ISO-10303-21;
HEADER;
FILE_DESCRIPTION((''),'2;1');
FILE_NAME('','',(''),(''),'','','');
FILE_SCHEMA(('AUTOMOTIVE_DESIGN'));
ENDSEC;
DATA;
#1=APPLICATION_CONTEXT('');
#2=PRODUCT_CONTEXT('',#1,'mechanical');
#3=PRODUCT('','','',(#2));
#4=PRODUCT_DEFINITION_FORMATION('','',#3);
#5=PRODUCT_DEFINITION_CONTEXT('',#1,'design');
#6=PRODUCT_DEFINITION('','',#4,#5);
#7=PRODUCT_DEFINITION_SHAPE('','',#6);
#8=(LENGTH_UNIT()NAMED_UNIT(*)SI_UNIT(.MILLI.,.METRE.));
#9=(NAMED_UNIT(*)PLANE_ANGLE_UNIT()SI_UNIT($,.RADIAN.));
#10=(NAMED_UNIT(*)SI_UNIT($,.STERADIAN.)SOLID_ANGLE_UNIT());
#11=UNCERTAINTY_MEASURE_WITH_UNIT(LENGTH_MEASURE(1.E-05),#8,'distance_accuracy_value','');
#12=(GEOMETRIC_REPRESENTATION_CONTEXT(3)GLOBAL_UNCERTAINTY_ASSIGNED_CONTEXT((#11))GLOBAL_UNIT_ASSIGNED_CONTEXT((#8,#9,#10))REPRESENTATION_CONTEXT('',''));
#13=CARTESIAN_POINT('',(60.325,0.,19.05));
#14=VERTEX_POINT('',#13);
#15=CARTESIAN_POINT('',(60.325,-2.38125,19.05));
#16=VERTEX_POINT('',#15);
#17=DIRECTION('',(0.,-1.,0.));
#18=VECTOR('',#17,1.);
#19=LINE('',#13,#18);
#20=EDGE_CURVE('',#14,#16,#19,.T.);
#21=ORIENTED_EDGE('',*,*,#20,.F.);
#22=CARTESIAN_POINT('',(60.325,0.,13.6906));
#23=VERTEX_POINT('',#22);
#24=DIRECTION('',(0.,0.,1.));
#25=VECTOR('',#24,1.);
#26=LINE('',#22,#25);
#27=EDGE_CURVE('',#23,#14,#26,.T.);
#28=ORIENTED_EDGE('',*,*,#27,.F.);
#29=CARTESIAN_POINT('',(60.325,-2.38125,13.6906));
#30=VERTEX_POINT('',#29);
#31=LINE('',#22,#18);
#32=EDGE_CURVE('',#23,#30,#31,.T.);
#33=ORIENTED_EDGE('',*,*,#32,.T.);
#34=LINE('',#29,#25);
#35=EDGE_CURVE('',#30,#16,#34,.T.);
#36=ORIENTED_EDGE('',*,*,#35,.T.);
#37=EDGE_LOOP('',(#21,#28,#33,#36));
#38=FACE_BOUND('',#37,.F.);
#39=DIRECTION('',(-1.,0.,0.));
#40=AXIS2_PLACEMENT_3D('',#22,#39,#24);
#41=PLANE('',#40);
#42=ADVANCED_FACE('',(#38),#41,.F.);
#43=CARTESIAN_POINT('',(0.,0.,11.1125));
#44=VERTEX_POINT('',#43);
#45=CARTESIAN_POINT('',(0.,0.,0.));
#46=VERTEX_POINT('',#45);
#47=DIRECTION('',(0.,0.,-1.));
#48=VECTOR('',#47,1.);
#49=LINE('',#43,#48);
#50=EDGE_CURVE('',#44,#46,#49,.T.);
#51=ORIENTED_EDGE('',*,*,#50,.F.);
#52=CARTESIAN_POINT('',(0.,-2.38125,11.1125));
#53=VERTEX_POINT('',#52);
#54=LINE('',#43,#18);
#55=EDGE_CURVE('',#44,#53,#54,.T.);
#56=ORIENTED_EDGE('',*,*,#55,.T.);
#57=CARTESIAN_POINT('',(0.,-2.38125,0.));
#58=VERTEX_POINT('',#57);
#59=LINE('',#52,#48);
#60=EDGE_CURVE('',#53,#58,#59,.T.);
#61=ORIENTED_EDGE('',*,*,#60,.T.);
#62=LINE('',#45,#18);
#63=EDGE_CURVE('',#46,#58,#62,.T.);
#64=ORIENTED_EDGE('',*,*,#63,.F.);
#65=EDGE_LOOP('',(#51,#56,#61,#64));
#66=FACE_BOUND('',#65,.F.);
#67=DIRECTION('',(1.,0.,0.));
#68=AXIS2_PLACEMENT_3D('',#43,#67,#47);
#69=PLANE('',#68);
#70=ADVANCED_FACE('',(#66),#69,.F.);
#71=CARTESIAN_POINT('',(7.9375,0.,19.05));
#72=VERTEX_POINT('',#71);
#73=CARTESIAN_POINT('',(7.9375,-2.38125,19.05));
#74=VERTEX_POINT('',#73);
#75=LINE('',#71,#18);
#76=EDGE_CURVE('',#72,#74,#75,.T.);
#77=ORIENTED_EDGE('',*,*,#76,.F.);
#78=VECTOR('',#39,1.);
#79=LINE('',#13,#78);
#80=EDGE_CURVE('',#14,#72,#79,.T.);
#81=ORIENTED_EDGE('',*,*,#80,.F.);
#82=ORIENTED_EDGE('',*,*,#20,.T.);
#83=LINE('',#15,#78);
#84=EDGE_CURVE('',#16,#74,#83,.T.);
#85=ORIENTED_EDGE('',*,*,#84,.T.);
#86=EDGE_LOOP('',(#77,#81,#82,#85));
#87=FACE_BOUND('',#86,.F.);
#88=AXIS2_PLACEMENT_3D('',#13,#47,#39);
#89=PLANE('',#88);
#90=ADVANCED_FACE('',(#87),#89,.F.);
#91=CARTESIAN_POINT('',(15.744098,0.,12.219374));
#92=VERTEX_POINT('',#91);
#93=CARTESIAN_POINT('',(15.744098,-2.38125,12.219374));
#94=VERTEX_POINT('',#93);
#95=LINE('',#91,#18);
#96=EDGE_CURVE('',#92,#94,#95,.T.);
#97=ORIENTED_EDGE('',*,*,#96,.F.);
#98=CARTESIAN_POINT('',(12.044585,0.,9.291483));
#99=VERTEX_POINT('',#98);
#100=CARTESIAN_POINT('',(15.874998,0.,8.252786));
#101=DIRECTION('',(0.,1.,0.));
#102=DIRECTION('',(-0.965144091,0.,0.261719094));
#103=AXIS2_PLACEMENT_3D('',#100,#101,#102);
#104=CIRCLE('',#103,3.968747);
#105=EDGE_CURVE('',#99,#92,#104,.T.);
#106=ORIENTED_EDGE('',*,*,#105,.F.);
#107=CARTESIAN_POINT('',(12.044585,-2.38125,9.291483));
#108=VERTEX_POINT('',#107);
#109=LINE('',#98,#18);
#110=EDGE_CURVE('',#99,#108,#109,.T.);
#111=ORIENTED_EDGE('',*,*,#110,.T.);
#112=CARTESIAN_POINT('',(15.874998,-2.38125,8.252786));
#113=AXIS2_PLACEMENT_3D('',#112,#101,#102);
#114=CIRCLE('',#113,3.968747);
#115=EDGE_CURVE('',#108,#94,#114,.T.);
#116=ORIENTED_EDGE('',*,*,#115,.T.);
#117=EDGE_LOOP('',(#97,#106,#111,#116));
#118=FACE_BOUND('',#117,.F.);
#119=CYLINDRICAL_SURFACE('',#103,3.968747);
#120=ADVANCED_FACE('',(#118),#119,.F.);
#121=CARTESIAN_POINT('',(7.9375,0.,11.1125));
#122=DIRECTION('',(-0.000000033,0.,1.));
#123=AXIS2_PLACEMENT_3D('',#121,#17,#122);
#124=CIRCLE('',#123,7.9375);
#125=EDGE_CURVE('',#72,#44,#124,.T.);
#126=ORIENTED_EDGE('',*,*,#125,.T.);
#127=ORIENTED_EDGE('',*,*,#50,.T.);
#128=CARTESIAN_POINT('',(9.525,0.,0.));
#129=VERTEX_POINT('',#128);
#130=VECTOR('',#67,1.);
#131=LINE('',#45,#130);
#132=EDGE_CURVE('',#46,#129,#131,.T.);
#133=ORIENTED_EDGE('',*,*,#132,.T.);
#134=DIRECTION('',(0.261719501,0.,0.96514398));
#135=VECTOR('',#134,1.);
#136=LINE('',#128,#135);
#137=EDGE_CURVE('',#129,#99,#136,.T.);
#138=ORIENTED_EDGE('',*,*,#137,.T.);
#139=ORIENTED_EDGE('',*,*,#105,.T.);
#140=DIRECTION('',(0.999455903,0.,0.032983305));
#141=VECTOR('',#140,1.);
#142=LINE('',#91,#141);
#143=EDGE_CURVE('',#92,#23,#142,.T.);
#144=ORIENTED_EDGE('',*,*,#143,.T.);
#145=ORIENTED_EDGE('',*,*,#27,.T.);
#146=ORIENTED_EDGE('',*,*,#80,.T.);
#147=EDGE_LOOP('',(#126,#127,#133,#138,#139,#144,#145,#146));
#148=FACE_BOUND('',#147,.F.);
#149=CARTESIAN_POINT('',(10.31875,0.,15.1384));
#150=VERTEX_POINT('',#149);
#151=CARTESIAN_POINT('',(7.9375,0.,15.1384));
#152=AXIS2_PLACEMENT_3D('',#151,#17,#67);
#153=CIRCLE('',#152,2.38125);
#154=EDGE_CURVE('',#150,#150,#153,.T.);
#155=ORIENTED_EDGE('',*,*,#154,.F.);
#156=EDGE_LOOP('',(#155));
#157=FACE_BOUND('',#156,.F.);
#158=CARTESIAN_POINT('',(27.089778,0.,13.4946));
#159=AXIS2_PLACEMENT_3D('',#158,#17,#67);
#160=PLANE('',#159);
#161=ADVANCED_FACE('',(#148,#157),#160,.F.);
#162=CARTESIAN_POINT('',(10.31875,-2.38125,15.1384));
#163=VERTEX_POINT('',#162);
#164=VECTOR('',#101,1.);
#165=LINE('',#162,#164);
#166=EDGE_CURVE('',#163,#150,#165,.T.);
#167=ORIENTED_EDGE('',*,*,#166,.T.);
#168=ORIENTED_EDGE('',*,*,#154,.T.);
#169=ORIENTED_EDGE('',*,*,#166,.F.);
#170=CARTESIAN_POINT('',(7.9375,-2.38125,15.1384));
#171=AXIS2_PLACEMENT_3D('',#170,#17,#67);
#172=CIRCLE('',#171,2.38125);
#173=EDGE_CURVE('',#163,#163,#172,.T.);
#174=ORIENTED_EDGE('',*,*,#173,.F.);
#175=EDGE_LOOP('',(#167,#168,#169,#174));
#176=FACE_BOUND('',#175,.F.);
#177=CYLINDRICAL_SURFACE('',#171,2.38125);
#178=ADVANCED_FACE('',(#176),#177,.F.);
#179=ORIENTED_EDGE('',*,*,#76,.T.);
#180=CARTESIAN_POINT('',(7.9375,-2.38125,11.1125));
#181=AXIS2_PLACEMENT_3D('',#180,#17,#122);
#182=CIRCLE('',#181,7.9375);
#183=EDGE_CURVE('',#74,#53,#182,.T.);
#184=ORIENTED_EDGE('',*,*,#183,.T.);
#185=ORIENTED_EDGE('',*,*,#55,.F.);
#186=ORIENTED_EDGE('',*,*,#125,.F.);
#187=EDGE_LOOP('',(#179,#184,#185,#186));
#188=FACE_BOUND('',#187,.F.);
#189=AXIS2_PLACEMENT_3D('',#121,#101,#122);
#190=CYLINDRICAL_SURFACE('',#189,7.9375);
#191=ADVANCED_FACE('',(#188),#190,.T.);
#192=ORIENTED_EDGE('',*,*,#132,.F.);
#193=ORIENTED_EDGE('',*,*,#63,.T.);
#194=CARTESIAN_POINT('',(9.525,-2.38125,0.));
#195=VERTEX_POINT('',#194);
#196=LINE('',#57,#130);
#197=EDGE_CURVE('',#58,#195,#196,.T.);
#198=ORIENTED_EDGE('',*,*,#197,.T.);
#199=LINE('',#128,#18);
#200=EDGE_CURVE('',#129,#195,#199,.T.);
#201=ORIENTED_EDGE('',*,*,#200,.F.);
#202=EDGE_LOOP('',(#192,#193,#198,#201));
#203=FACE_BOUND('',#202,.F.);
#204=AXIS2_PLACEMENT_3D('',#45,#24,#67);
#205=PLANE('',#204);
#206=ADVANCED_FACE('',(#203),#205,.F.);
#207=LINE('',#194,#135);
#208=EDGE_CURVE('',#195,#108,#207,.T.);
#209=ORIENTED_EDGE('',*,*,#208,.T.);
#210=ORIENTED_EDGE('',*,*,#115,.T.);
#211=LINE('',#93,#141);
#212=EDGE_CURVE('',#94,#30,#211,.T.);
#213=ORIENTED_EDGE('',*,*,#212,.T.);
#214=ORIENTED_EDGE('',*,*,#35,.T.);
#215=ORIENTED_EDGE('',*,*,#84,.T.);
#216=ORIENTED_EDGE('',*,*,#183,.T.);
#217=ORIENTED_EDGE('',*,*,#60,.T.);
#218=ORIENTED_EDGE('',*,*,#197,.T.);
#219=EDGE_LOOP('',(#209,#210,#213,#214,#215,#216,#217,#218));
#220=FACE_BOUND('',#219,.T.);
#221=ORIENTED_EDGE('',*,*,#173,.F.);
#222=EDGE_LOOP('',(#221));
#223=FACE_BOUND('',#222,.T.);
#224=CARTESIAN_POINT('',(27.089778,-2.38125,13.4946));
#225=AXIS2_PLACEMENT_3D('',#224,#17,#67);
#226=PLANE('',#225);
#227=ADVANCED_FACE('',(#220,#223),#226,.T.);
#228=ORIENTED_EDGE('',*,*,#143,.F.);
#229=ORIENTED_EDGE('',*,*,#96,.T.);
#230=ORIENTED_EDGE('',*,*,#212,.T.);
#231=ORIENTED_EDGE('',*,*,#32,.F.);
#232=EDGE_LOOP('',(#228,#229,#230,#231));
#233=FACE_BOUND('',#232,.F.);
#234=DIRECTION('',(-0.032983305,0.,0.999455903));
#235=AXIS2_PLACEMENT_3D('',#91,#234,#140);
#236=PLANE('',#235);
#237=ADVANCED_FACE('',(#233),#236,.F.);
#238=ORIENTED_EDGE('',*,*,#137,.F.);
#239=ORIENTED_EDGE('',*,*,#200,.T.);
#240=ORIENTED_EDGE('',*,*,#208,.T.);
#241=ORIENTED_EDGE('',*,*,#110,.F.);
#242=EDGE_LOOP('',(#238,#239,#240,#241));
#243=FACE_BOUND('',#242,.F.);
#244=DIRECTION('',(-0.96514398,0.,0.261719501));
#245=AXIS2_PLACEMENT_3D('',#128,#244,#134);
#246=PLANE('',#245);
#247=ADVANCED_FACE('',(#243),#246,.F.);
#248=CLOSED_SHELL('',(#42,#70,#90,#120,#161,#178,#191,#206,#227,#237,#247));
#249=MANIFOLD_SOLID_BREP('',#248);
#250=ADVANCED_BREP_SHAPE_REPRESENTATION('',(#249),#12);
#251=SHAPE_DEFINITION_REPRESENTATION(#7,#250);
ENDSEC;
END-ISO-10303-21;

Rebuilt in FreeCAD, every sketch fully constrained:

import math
import FreeCAD as App
import Part
import Sketcher

V = App.Vector
Q = App.Units.Quantity

doc = App.newDocument("Part")
body = doc.addObject("PartDesign::Body", "Body")

# Sketch on XZ plane
sketch1 = body.newObject("Sketcher::SketchObject", "Sketch")
sketch1.AttachmentSupport = (doc.getObject("XZ_Plane"), [""])
sketch1.MapMode = "FlatFace"
sketch1.addGeometry(Part.LineSegment(V(60.325, 19.05, 0), V(7.9375, 19.05, 0)), False)
sketch1.addGeometry(Part.ArcOfCircle(Part.Circle(V(7.9375, 11.1125, 0), V(0, 0, 1), 7.9375), math.radians(90.000002), math.radians(179.999998)), False)
sketch1.addGeometry(Part.LineSegment(V(0, 11.1125, 0), V(0, 0, 0)), False)
sketch1.addGeometry(Part.LineSegment(V(0, 0, 0), V(9.525, 0, 0)), False)
sketch1.addGeometry(Part.LineSegment(V(9.525, 0, 0), V(12.044585, 9.291483, 0)), False)
sketch1.addGeometry(Part.ArcOfCircle(Part.Circle(V(15.874998, 8.252786, 0), V(0, 0, 1), 3.968747), math.radians(91.890111), math.radians(164.827908)), False)
sketch1.addGeometry(Part.LineSegment(V(15.744098, 12.219374, 0), V(60.325, 13.6906, 0)), False)
sketch1.addGeometry(Part.LineSegment(V(60.325, 13.6906, 0), V(60.325, 19.05, 0)), False)
sketch1.addConstraint(Sketcher.Constraint("Coincident", 0, 2, 1, 1))
sketch1.addConstraint(Sketcher.Constraint("Coincident", 1, 2, 2, 1))
sketch1.addConstraint(Sketcher.Constraint("Coincident", 2, 2, 3, 1))
sketch1.addConstraint(Sketcher.Constraint("Coincident", 3, 2, 4, 1))
sketch1.addConstraint(Sketcher.Constraint("Coincident", 4, 2, 5, 2))
sketch1.addConstraint(Sketcher.Constraint("Coincident", 5, 1, 6, 1))
sketch1.addConstraint(Sketcher.Constraint("Coincident", 6, 2, 7, 1))
sketch1.addConstraint(Sketcher.Constraint("Coincident", 7, 2, 0, 1))
sketch1.addConstraint(Sketcher.Constraint("Horizontal", 0))
sketch1.addConstraint(Sketcher.Constraint("Vertical", 2))
sketch1.addConstraint(Sketcher.Constraint("Horizontal", 3))
sketch1.addConstraint(Sketcher.Constraint("Vertical", 7))
sketch1.addConstraint(Sketcher.Constraint("Coincident", 2, 2, -1, 1))
sketch1.addConstraint(Sketcher.Constraint("Radius", 1, Q("0.3125 in")))
sketch1.addConstraint(Sketcher.Constraint("Radius", 5, Q("0.1562499 in")))
sketch1.addConstraint(Sketcher.Constraint("DistanceX", 3, 2, 6, 2, Q("2 in")))
sketch1.addConstraint(Sketcher.Constraint("DistanceX", 0, 2, 0, 1, Q("2.0625 in")))
sketch1.addConstraint(Sketcher.Constraint("DistanceX", 3, 1, 3, 2, Q("0.375 in")))
sketch1.addConstraint(Sketcher.Constraint("DistanceY", 2, 2, 2, 1, Q("0.4375 in")))
sketch1.addConstraint(Sketcher.Constraint("DistanceY", 7, 1, 7, 2, Q("0.211 in")))
sketch1.addConstraint(Sketcher.Constraint("DistanceY", -1, 1, 0, 2, Q("0.75 in")))
sketch1.addConstraint(Sketcher.Constraint("DistanceX", 3, 2, 5, 3, Q("0.2499999 in")))
sketch1.addConstraint(Sketcher.Constraint("DistanceX", -1, 1, 5, 1, 15.744098))
sketch1.addConstraint(Sketcher.Constraint("Distance", 6, 44.605172))
sketch1.addConstraint(Sketcher.Constraint("DistanceY", 4, 2, 5, 1, 2.927891))
pad1 = body.newObject("PartDesign::Pad", "Pad")
pad1.Profile = sketch1
pad1.Length = Q("0.09375 in")

# Sketch on XZ plane
sketch2 = body.newObject("Sketcher::SketchObject", "Sketch001")
sketch2.AttachmentSupport = (doc.getObject("XZ_Plane"), [""])
sketch2.MapMode = "FlatFace"
sketch2.AttachmentOffset = App.Placement(V(0, 0, 0.09375 * 25.4), App.Rotation())
sketch2.addGeometry(Part.Circle(V(7.9375, 15.1384, 0), V(0, 0, 1), 2.38125), False)
sketch2.addConstraint(Sketcher.Constraint("Diameter", 0, Q("0.1875 in")))
sketch2.addConstraint(Sketcher.Constraint("DistanceX", -1, 1, 0, 3, Q("0.3125 in")))
sketch2.addConstraint(Sketcher.Constraint("DistanceY", -1, 1, 0, 3, Q("0.596 in")))
pocket1 = body.newObject("PartDesign::Pocket", "Pocket")
pocket1.Profile = sketch2
pocket1.Type = "ThroughAll"

doc.recompute()
